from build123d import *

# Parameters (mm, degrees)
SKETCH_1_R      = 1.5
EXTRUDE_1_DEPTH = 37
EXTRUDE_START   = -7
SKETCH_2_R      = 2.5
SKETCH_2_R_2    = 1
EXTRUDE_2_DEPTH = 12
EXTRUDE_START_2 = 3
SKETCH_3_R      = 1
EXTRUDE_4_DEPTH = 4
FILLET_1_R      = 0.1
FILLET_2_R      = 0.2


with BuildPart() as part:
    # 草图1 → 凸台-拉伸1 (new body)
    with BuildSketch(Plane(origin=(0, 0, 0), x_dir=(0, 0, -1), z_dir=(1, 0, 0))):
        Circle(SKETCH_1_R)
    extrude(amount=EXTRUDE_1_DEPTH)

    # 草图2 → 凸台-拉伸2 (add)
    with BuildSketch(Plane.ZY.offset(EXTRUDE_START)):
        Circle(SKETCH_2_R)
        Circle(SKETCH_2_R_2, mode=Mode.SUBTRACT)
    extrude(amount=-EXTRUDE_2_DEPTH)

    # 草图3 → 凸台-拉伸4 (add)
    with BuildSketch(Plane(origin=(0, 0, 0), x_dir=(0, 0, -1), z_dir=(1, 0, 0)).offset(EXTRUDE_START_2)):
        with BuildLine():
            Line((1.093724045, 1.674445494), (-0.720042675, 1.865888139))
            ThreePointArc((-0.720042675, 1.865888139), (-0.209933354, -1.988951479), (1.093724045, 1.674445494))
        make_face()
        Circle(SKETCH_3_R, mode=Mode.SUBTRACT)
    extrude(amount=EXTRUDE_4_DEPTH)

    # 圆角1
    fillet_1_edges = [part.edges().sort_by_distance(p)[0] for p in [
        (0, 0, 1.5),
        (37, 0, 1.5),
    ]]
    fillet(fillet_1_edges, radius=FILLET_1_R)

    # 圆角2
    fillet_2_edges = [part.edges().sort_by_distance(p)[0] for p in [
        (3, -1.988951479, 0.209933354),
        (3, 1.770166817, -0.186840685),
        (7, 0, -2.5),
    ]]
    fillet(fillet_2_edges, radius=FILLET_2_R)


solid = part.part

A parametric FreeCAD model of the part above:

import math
import FreeCAD as App
import Part
import Sketcher
Q = App.Units.Quantity


def edges_at(feature, points):
    """Names of the edges that pass closest to the given points."""
    edges = feature.Shape.Edges
    near = lambda p: min(range(len(edges)), key=lambda i: edges[i].distToShape(Part.Vertex(*p))[0])
    return sorted({f"Edge{near(p) + 1}" for p in points})

doc = App.newDocument("Part")
body = doc.addObject("PartDesign::Body", "Body")

sketch1 = doc.addObject("Sketcher::SketchObject", "Sketch")
body.addObject(sketch1)
sketch1.AttachmentSupport = (doc.YZ_Plane, [""])
sketch1.MapMode = "FlatFace"
sketch1.addGeometry(Part.Circle(App.Vector(0, 0, 0), App.Vector(0, 0, 1), 1.5), False)
sketch1.addConstraint(Sketcher.Constraint("Coincident", 0, 3, -1, 1))
sketch1.addConstraint(Sketcher.Constraint("Diameter", 0, Q("3 mm")))
pad1 = doc.addObject("PartDesign::Pad", "Pad")
body.addObject(pad1)
pad1.Profile = sketch1
pad1.Length = 37

sketch2 = doc.addObject("Sketcher::SketchObject", "Sketch001")
body.addObject(sketch2)
sketch2.AttachmentSupport = (doc.YZ_Plane, [""])
sketch2.MapMode = "FlatFace"
sketch2.AttachmentOffset = App.Placement(App.Vector(0, 0, 7), App.Rotation())
sketch2.addGeometry(Part.Circle(App.Vector(0, 0, 0), App.Vector(0, 0, 1), 2.5), False)
sketch2.addGeometry(Part.Circle(App.Vector(0, 0, 0), App.Vector(0, 0, 1), 1), False)
sketch2.addConstraint(Sketcher.Constraint("Coincident", 0, 3, -1, 1))
sketch2.addConstraint(Sketcher.Constraint("Coincident", 1, 3, -1, 1))
sketch2.addConstraint(Sketcher.Constraint("Diameter", 0, Q("5 mm")))
sketch2.addConstraint(Sketcher.Constraint("Diameter", 1, Q("2 mm")))
pad2 = doc.addObject("PartDesign::Pad", "Pad001")
body.addObject(pad2)
pad2.Profile = sketch2
pad2.Length = 12

sketch3 = doc.addObject("Sketcher::SketchObject", "Sketch002")
body.addObject(sketch3)
sketch3.AttachmentSupport = (doc.YZ_Plane, [""])
sketch3.MapMode = "FlatFace"
sketch3.AttachmentOffset = App.Placement(App.Vector(0, 0, 3), App.Rotation())
sketch3.addGeometry(Part.LineSegment(App.Vector(1.7, -1.1, 0), App.Vector(1.9, 0.7, 0)), False)
sketch3.addGeometry(Part.ArcOfCircle(Part.Circle(App.Vector(0, 0, 0), App.Vector(0, 0, 1), 2), math.radians(21), math.radians(327)), False)
sketch3.addGeometry(Part.Circle(App.Vector(0, 0, 0), App.Vector(0, 0, 1), 1), False)
sketch3.addConstraint(Sketcher.Constraint("Coincident", 0, 1, 1, 2))
sketch3.addConstraint(Sketcher.Constraint("Coincident", 1, 1, 0, 2))
sketch3.addConstraint(Sketcher.Constraint("Coincident", 1, 3, -1, 1))
sketch3.addConstraint(Sketcher.Constraint("Coincident", 2, 3, -1, 1))
sketch3.addConstraint(Sketcher.Constraint("Diameter", 2, Q("2 mm")))
sketch3.addConstraint(Sketcher.Constraint("Radius", 1, Q("2 mm")))
sketch3.addConstraint(Sketcher.Constraint("DistanceX", -1, 1, 1, 1, Q("1.865888 mm")))
sketch3.addConstraint(Sketcher.Constraint("Distance", 0, Q("1.823842 mm")))
pad3 = doc.addObject("PartDesign::Pad", "Pad002")
body.addObject(pad3)
pad3.Profile = sketch3
pad3.Length = 4
doc.recompute()

fillet = doc.addObject("PartDesign::Fillet", "Fillet")
body.addObject(fillet)
fillet.Base = (pad3, edges_at(pad3, [(0, 0, 1.5), (37, 0, 1.5)]))
fillet.Radius = 0.1
doc.recompute()

fillet2 = doc.addObject("PartDesign::Fillet", "Fillet001")
body.addObject(fillet2)
fillet2.Base = (fillet, edges_at(fillet, [(3, -1.989, 0.21), (3, 1.77, -0.187), (7, 0, -2.5)]))
fillet2.Radius = 0.2

doc.recompute()
